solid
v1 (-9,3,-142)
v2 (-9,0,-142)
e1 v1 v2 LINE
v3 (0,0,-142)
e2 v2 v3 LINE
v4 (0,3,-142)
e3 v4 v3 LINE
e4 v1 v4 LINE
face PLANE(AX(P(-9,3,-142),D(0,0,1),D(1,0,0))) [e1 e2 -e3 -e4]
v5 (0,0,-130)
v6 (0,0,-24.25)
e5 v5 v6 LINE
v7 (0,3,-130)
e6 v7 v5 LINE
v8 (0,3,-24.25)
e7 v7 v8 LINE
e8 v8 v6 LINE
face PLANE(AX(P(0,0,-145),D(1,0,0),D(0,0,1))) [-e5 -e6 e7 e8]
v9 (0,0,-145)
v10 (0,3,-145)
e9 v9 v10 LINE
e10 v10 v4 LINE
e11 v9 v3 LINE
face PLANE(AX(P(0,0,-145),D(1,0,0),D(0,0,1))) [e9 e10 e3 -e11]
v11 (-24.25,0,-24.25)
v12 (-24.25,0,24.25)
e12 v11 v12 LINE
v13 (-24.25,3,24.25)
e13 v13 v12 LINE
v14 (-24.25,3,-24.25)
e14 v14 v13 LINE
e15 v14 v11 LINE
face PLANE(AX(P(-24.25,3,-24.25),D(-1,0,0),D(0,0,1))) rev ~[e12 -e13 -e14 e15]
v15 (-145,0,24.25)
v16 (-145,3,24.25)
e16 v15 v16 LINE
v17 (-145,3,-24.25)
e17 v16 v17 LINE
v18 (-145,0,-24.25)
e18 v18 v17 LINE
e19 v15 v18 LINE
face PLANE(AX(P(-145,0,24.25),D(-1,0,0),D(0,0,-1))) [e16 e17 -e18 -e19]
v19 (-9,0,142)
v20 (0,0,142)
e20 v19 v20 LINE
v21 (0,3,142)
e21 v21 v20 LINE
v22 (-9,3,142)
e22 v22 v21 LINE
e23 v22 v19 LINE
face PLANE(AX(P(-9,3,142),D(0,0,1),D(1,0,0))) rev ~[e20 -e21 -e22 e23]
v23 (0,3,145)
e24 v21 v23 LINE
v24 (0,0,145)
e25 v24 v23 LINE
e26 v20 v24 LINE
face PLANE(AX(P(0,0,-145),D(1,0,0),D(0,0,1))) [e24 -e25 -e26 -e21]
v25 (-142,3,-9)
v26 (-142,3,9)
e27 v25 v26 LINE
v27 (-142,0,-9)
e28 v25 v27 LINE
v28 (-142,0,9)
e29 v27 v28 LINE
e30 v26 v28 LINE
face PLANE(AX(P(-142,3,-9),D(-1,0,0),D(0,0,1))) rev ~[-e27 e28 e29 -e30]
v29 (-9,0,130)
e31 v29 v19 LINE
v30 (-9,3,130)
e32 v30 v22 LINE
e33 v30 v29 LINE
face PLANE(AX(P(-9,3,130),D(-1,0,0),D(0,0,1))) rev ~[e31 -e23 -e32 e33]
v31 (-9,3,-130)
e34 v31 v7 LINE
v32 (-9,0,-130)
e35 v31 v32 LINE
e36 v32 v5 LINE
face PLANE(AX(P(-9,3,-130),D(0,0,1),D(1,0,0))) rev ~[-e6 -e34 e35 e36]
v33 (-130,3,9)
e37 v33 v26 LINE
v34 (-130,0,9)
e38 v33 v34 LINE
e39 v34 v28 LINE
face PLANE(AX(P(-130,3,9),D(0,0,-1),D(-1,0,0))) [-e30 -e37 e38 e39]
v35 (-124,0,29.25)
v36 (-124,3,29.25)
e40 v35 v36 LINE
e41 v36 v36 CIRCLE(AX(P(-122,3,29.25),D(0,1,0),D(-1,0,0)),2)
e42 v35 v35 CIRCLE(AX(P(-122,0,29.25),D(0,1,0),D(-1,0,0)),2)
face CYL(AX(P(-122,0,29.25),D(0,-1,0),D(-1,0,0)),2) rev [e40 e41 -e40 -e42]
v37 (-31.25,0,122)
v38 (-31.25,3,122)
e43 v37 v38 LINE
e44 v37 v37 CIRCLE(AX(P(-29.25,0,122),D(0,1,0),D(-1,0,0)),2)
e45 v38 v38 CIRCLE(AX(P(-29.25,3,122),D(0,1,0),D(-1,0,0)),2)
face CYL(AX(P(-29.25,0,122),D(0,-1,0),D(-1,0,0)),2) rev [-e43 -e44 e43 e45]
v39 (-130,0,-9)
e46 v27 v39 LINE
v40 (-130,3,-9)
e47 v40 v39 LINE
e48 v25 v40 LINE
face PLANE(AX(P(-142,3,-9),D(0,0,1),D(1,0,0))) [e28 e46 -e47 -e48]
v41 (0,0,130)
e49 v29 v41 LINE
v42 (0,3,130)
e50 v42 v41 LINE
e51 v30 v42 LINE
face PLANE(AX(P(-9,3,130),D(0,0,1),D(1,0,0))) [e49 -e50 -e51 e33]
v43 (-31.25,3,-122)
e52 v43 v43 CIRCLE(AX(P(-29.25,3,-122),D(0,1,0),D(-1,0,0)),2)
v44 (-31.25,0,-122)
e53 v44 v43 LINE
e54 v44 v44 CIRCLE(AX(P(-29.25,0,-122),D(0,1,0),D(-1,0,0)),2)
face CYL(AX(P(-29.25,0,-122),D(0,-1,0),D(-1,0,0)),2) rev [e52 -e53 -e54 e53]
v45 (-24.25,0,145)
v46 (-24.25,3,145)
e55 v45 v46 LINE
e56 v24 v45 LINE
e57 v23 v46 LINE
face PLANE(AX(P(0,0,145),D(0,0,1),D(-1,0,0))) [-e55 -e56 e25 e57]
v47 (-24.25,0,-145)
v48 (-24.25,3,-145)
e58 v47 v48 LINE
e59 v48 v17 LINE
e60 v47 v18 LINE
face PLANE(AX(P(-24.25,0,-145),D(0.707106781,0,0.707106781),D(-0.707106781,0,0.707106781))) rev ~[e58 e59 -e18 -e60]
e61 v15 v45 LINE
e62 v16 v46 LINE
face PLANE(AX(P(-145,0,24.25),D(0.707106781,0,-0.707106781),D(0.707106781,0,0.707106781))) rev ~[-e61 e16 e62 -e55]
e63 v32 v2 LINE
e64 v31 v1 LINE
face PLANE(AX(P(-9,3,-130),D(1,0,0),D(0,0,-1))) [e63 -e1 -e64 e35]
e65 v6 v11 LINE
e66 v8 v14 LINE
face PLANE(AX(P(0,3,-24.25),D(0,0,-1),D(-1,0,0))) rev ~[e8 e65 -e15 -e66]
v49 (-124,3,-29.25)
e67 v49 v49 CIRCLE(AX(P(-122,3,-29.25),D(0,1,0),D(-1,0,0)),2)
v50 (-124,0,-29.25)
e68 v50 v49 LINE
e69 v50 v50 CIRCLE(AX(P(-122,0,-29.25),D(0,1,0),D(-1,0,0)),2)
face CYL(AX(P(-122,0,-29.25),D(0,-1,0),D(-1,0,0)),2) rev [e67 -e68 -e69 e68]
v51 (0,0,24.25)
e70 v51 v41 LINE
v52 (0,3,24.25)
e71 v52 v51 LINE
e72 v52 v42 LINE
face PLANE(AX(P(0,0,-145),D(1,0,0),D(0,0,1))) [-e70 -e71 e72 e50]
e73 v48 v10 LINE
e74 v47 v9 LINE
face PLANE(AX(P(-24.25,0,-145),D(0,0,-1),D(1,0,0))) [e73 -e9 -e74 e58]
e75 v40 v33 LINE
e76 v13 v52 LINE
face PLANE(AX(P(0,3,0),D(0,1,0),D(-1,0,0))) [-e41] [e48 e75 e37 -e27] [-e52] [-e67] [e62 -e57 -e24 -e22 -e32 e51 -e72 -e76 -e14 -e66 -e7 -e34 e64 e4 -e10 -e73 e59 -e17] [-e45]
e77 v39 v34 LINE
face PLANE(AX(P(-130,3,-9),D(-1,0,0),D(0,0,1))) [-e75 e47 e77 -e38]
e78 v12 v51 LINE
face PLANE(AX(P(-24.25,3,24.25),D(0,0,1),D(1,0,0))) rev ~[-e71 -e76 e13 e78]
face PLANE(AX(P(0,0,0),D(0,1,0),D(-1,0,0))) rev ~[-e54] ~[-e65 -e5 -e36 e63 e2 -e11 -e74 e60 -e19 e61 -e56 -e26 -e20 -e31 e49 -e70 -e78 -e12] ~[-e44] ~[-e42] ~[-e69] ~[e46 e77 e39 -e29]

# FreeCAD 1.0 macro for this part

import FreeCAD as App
import Part
import Sketcher
from FreeCAD import Vector

doc = App.newDocument("Part")
body = doc.addObject("PartDesign::Body", "Body")

sketch1 = doc.addObject("Sketcher::SketchObject", "Sketch")
body.addObject(sketch1)
sketch1.AttachmentSupport = (doc.XZ_Plane, [""])
sketch1.MapMode = "FlatFace"
sketch1.addGeometry(Part.LineSegment(Vector(-24.25, 145, 0), Vector(0, 145, 0)), False)
sketch1.addGeometry(Part.LineSegment(Vector(0, 145, 0), Vector(0, -145, 0)), False)
sketch1.addGeometry(Part.LineSegment(Vector(0, -145, 0), Vector(-24.25, -145, 0)), False)
sketch1.addGeometry(Part.LineSegment(Vector(-24.25, -145, 0), Vector(-145, -24.25, 0)), False)
sketch1.addGeometry(Part.LineSegment(Vector(-145, -24.25, 0), Vector(-145, 24.25, 0)), False)
sketch1.addGeometry(Part.LineSegment(Vector(-145, 24.25, 0), Vector(-24.25, 145, 0)), False)
sketch1.addGeometry(Part.Circle(Vector(-29.25, -122, 0), Vector(0, 0, 1), 2), False)
sketch1.addGeometry(Part.Circle(Vector(-122, -29.25, 0), Vector(0, 0, 1), 2), False)
sketch1.addGeometry(Part.Circle(Vector(-29.25, 122, 0), Vector(0, 0, 1), 2), False)
sketch1.addGeometry(Part.Circle(Vector(-122, 29.25, 0), Vector(0, 0, 1), 2), False)
sketch1.addConstraint(Sketcher.Constraint("Coincident", 0, 2, 1, 1))
sketch1.addConstraint(Sketcher.Constraint("Coincident", 1, 2, 2, 1))
sketch1.addConstraint(Sketcher.Constraint("Coincident", 2, 2, 3, 1))
sketch1.addConstraint(Sketcher.Constraint("Coincident", 3, 2, 4, 1))
sketch1.addConstraint(Sketcher.Constraint("Coincident", 4, 2, 5, 1))
sketch1.addConstraint(Sketcher.Constraint("Coincident", 5, 2, 0, 1))
sketch1.addConstraint(Sketcher.Constraint("Horizontal", 0))
sketch1.addConstraint(Sketcher.Constraint("Vertical", 1))
sketch1.addConstraint(Sketcher.Constraint("Horizontal", 2))
sketch1.addConstraint(Sketcher.Constraint("Vertical", 4))
sketch1.addConstraint(Sketcher.Constraint("Equal", 6, 7))
sketch1.addConstraint(Sketcher.Constraint("Equal", 7, 8))
sketch1.addConstraint(Sketcher.Constraint("Equal", 8, 9))
sketch1.addConstraint(Sketcher.Constraint("Symmetric", 0, 2, 1, 2, -1, 1))
sketch1.addConstraint(Sketcher.Constraint("Symmetric", 6, 3, 8, 3, -1))
sketch1.addConstraint(Sketcher.Constraint("Symmetric", 7, 3, 9, 3, -1))
sketch1.addConstraint(Sketcher.Constraint("Perpendicular", 3, 5))
sketch1.addConstraint(Sketcher.Constraint("Vertical", 2, 2, 5, 2))
sketch1.addConstraint(Sketcher.Constraint("Equal", 3, 5))
sketch1.addConstraint(Sketcher.Constraint("Diameter", 6, 4.0))
sketch1.addConstraint(Sketcher.Constraint("DistanceY", 1, 2, 1, 1, 290.0))
sketch1.addConstraint(Sketcher.Constraint("DistanceY", 4, 1, 4, 2, 48.5))
sketch1.addConstraint(Sketcher.Constraint("DistanceY", 6, 3, -1, 1, 122.0))
sketch1.addConstraint(Sketcher.Constraint("DistanceX", 7, 3, -1, 1, 122.0))
sketch1.addConstraint(Sketcher.Constraint("DistanceX", 3, 2, -1, 1, 145.0))
sketch1.addConstraint(Sketcher.Constraint("DistanceX", 6, 3, 2, 2, 5.0))
sketch1.addConstraint(Sketcher.Constraint("DistanceY", 7, 3, 3, 2, 5.0))
pad1 = doc.addObject("PartDesign::Pad", "Pad")
body.addObject(pad1)
pad1.Profile = sketch1
pad1.Length = 3
pad1.Reversed = True

sketch2 = doc.addObject("Sketcher::SketchObject", "Sketch001")
body.addObject(sketch2)
sketch2.AttachmentSupport = (doc.XZ_Plane, [""])
sketch2.MapMode = "FlatFace"
sketch2.AttachmentOffset = App.Placement(Vector(0, 0, -3), App.Rotation())
sketch2.addGeometry(Part.LineSegment(Vector(-130, -9, 0), Vector(-142, -9, 0)), False)
sketch2.addGeometry(Part.LineSegment(Vector(-142, -9, 0), Vector(-142, 9, 0)), False)
sketch2.addGeometry(Part.LineSegment(Vector(-142, 9, 0), Vector(-130, 9, 0)), False)
sketch2.addGeometry(Part.LineSegment(Vector(-130, 9, 0), Vector(-130, -9, 0)), False)
sketch2.addGeometry(Part.LineSegment(Vector(0, 130, 0), Vector(-9, 130, 0)), False)
sketch2.addGeometry(Part.LineSegment(Vector(-9, 130, 0), Vector(-9, 142, 0)), False)
sketch2.addGeometry(Part.LineSegment(Vector(-9, 142, 0), Vector(0, 142, 0)), False)
sketch2.addGeometry(Part.LineSegment(Vector(0, 142, 0), Vector(0, 130, 0)), False)
sketch2.addGeometry(Part.LineSegment(Vector(-9, -130, 0), Vector(0, -130, 0)), False)
sketch2.addGeometry(Part.LineSegment(Vector(0, -130, 0), Vector(0, -142, 0)), False)
sketch2.addGeometry(Part.LineSegment(Vector(0, -142, 0), Vector(-9, -142, 0)), False)
sketch2.addGeometry(Part.LineSegment(Vector(-9, -142, 0), Vector(-9, -130, 0)), False)
sketch2.addConstraint(Sketcher.Constraint("Coincident", 0, 2, 1, 1))
sketch2.addConstraint(Sketcher.Constraint("Coincident", 1, 2, 2, 1))
sketch2.addConstraint(Sketcher.Constraint("Coincident", 2, 2, 3, 1))
sketch2.addConstraint(Sketcher.Constraint("Coincident", 3, 2, 0, 1))
sketch2.addConstraint(Sketcher.Constraint("Coincident", 4, 2, 5, 1))
sketch2.addConstraint(Sketcher.Constraint("Coincident", 5, 2, 6, 1))
sketch2.addConstraint(Sketcher.Constraint("Coincident", 6, 2, 7, 1))
sketch2.addConstraint(Sketcher.Constraint("Coincident", 7, 2, 4, 1))
sketch2.addConstraint(Sketcher.Constraint("Coincident", 8, 2, 9, 1))
sketch2.addConstraint(Sketcher.Constraint("Coincident", 9, 2, 10, 1))
sketch2.addConstraint(Sketcher.Constraint("Coincident", 10, 2, 11, 1))
sketch2.addConstraint(Sketcher.Constraint("Coincident", 11, 2, 8, 1))
sketch2.addConstraint(Sketcher.Constraint("Horizontal", 0))
sketch2.addConstraint(Sketcher.Constraint("Vertical", 1))
sketch2.addConstraint(Sketcher.Constraint("Horizontal", 2))
sketch2.addConstraint(Sketcher.Constraint("Vertical", 3))
sketch2.addConstraint(Sketcher.Constraint("Horizontal", 4))
sketch2.addConstraint(Sketcher.Constraint("Vertical", 5))
sketch2.addConstraint(Sketcher.Constraint("Horizontal", 6))
sketch2.addConstraint(Sketcher.Constraint("Vertical", 7))
sketch2.addConstraint(Sketcher.Constraint("Horizontal", 8))
sketch2.addConstraint(Sketcher.Constraint("Vertical", 9))
sketch2.addConstraint(Sketcher.Constraint("Horizontal", 10))
sketch2.addConstraint(Sketcher.Constraint("Vertical", 11))
sketch2.addConstraint(Sketcher.Constraint("Symmetric", 7, 2, 8, 2, -1, 1))
sketch2.addConstraint(Sketcher.Constraint("Symmetric", 6, 2, 9, 2, -1))
sketch2.addConstraint(Sketcher.Constraint("Vertical", 5, 2, 10, 2))
sketch2.addConstraint(Sketcher.Constraint("Equal", 2, 5))
sketch2.addConstraint(Sketcher.Constraint("DistanceX", 0, 2, 0, 1, 12.0))
sketch2.addConstraint(Sketcher.Constraint("DistanceX", 4, 2, 4, 1, 9.0))
sketch2.addConstraint(Sketcher.Constraint("DistanceY", 1, 1, 1, 2, 18.0))
sketch2.addConstraint(Sketcher.Constraint("DistanceX", 0, 2, -1, 1, 142.0))
sketch2.addConstraint(Sketcher.Constraint("DistanceY", 0, 2, -1, 1, 9.0))
sketch2.addConstraint(Sketcher.Constraint("DistanceY", -1, 1, 4, 2, 130.0))
pocket1 = doc.addObject("PartDesign::Pocket", "Pocket")
body.addObject(pocket1)
pocket1.Profile = sketch2
pocket1.Length = 3
pocket1.Reversed = True

sketch3 = doc.addObject("Sketcher::SketchObject", "Sketch002")
body.addObject(sketch3)
sketch3.AttachmentSupport = (doc.XZ_Plane, [""])
sketch3.MapMode = "FlatFace"
sketch3.AttachmentOffset = App.Placement(Vector(0, 0, -3), App.Rotation())
sketch3.addGeometry(Part.LineSegment(Vector(0, 24.25, 0), Vector(0, -24.25, 0)), False)
sketch3.addGeometry(Part.LineSegment(Vector(0, -24.25, 0), Vector(-24.25, -24.25, 0)), False)
sketch3.addGeometry(Part.LineSegment(Vector(-24.25, -24.25, 0), Vector(-24.25, 24.25, 0)), False)
sketch3.addGeometry(Part.LineSegment(Vector(-24.25, 24.25, 0), Vector(0, 24.25, 0)), False)
sketch3.addConstraint(Sketcher.Constraint("Coincident", 0, 2, 1, 1))
sketch3.addConstraint(Sketcher.Constraint("Coincident", 1, 2, 2, 1))
sketch3.addConstraint(Sketcher.Constraint("Coincident", 2, 2, 3, 1))
sketch3.addConstraint(Sketcher.Constraint("Coincident", 3, 2, 0, 1))
sketch3.addConstraint(Sketcher.Constraint("Vertical", 0))
sketch3.addConstraint(Sketcher.Constraint("Horizontal", 1))
sketch3.addConstraint(Sketcher.Constraint("Vertical", 2))
sketch3.addConstraint(Sketcher.Constraint("Horizontal", 3))
sketch3.addConstraint(Sketcher.Constraint("Symmetric", 0, 2, 3, 2, -1, 1))
sketch3.addConstraint(Sketcher.Constraint("DistanceY", 0, 2, 0, 1, 48.5))
sketch3.addConstraint(Sketcher.Constraint("DistanceX", 1, 2, 1, 1, 24.25))
pocket2 = doc.addObject("PartDesign::Pocket", "Pocket001")
body.addObject(pocket2)
pocket2.Profile = sketch3
pocket2.Length = 3
pocket2.Reversed = True

doc.recompute()
